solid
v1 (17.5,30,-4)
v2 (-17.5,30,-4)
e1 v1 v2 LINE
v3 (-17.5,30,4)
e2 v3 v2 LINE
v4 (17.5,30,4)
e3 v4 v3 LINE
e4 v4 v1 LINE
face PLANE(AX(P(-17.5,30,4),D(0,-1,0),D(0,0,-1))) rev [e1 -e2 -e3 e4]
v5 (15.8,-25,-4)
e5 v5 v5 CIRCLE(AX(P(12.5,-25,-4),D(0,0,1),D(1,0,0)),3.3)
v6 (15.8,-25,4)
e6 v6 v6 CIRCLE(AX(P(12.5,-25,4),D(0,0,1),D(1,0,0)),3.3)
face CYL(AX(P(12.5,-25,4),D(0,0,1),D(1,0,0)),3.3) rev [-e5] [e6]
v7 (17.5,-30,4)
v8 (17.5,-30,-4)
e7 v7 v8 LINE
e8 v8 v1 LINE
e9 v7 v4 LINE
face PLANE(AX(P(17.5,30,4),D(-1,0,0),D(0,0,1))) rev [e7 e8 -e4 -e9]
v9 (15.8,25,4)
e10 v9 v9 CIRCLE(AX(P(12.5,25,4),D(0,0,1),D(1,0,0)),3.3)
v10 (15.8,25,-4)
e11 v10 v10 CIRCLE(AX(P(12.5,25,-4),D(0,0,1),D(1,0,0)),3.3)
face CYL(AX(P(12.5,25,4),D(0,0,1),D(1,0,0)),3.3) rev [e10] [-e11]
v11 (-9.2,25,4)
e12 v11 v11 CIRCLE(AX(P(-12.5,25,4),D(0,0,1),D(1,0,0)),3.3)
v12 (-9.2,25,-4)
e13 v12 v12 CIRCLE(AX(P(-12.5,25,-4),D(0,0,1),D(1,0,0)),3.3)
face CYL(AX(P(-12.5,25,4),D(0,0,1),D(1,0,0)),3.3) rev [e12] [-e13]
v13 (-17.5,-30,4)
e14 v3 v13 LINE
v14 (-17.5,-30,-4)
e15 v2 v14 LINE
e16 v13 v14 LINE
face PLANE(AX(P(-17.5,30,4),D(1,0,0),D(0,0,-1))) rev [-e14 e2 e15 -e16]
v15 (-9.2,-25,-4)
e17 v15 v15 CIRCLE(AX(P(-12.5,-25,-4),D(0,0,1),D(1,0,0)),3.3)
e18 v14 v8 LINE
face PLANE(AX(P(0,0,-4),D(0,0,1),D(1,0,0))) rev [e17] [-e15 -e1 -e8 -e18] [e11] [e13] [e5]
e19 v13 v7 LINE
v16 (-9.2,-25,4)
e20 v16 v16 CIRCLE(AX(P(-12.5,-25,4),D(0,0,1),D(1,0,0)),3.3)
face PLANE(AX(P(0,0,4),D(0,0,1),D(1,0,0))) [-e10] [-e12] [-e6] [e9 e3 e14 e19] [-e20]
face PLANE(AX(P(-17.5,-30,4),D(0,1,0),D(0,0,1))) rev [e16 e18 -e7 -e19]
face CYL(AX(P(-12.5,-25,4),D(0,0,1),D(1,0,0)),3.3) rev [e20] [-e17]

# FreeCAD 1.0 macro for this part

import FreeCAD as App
import Part
import Sketcher

V = App.Vector
Q = App.Units.Quantity


def add_polygon(sketch, points):
    """Adds a closed chain of lines whose ends are joined by coincident constraints."""
    first, n = sketch.GeometryCount, len(points)
    for a, b in zip(points, points[1:] + points[:1]):
        sketch.addGeometry(Part.LineSegment(App.Vector(*a, 0), App.Vector(*b, 0)), False)
    for i in range(n):
        sketch.addConstraint(Sketcher.Constraint("Coincident", first + i, 2, first + (i + 1) % n, 1))

doc = App.newDocument("Part")
params = doc.addObject("Spreadsheet::Sheet", "Params")
for row, (alias, value) in enumerate([
    ("sketch1_width", "35 mm"),
    ("sketch1_height", "60 mm"),
    ("pad1_length", "8 mm"),
    ("sketch2_height", "8 mm"),
    ("sketch2_width", "3.3 mm"),
    ("groove_angle", "360 deg"),
    ("sketch3_height", "8 mm"),
    ("sketch3_width", "3.3 mm"),
    ("groove2_angle", "360 deg"),
], start=1):
    params.set(f"A{row}", alias)
    params.set(f"B{row}", "=" + value)
    params.setAlias(f"B{row}", alias)

body = doc.addObject("PartDesign::Body", "Body")

# Sketch on XY plane
sketch1 = body.newObject("Sketcher::SketchObject", "Sketch")
sketch1.AttachmentSupport = (doc.getObject("XY_Plane"), [""])
sketch1.MapMode = "FlatFace"
add_polygon(sketch1, [(-18, 30), (-18, -30), (18, -30), (18, 30)])  # lines 0-3
sketch1.addConstraint(Sketcher.Constraint("Vertical", 0))
sketch1.addConstraint(Sketcher.Constraint("Horizontal", 1))
sketch1.addConstraint(Sketcher.Constraint("Vertical", 2))
sketch1.addConstraint(Sketcher.Constraint("Horizontal", 3))
sketch1.addConstraint(Sketcher.Constraint("Symmetric", 0, 2, 2, 2, -1, 1))
sketch1.addConstraint(Sketcher.Constraint("DistanceX", 1, 1, 1, 2, 35.0))
sketch1.addConstraint(Sketcher.Constraint("DistanceY", 0, 2, 0, 1, 60.0))
sketch1.setExpression("Constraints[9]", "Params.sketch1_width")
sketch1.setExpression("Constraints[10]", "Params.sketch1_height")
pad1 = body.newObject("PartDesign::Pad", "Pad")
pad1.Profile = sketch1
pad1.setExpression("Length", "Params.pad1_length")
pad1.Midplane = True

# Sketch on YZ plane
sketch2 = body.newObject("Sketcher::SketchObject", "Sketch001")
sketch2.AttachmentSupport = (doc.getObject("YZ_Plane"), [""])
sketch2.MapMode = "FlatFace"
sketch2.AttachmentOffset = App.Placement(V(0, 0, -12.5), App.Rotation())
add_polygon(sketch2, [(25, -6), (25, 4), (21.7, 4), (21.7, -4)])  # lines 0-3
sketch2.addGeometry(Part.LineSegment(V(25, 4, 0), V(25, -6, 0)), True)  # axis
sketch2.addConstraint(Sketcher.Constraint("Vertical", 0))
sketch2.addConstraint(Sketcher.Constraint("Horizontal", 1))
sketch2.addConstraint(Sketcher.Constraint("Vertical", 2))
sketch2.addConstraint(Sketcher.Constraint("Vertical", 4))
sketch2.addConstraint(Sketcher.Constraint("Coincident", 4, 1, 0, 2))
sketch2.addConstraint(Sketcher.Constraint("Equal", 0, 4))
sketch2.addConstraint(Sketcher.Constraint("DistanceY", 2, 2, 2, 1, 8.0))
sketch2.addConstraint(Sketcher.Constraint("Angle", 3, Q("-31 deg")))
sketch2.addConstraint(Sketcher.Constraint("DistanceX", 1, 2, 1, 1, 3.3))
sketch2.addConstraint(Sketcher.Constraint("DistanceX", -1, 1, 0, 2, 25.0))
sketch2.addConstraint(Sketcher.Constraint("DistanceY", -1, 1, 0, 2, 4.0))
sketch2.setExpression("Constraints[10]", "Params.sketch2_height")
sketch2.setExpression("Constraints[12]", "Params.sketch2_width")
groove = body.newObject("PartDesign::Groove", "Groove")
groove.Profile = sketch2
groove.ReferenceAxis = (sketch2, ["Axis0"])
groove.setExpression("Angle", "Params.groove_angle")
doc.recompute()

mirrored = body.newObject("PartDesign::Mirrored", "Mirrored")
mirrored.Originals = [groove]
mirrored.MirrorPlane = (doc.getObject("YZ_Plane"), [""])
body.Tip = mirrored
doc.recompute()

mirrored2 = body.newObject("PartDesign::Mirrored", "Mirrored001")
mirrored2.Originals = [groove]
mirrored2.MirrorPlane = (doc.getObject("XZ_Plane"), [""])
body.Tip = mirrored2

# Sketch on YZ plane
sketch3 = body.newObject("Sketcher::SketchObject", "Sketch002")
sketch3.AttachmentSupport = (doc.getObject("YZ_Plane"), [""])
sketch3.MapMode = "FlatFace"
sketch3.AttachmentOffset = App.Placement(V(0, 0, 12.5), App.Rotation())
add_polygon(sketch3, [(-25, -6), (-25, 4), (-21.7, 4), (-21.7, -4)])  # lines 0-3
sketch3.addGeometry(Part.LineSegment(V(-25, 4, 0), V(-25, -6, 0)), True)  # axis
sketch3.addConstraint(Sketcher.Constraint("Vertical", 0))
sketch3.addConstraint(Sketcher.Constraint("Horizontal", 1))
sketch3.addConstraint(Sketcher.Constraint("Vertical", 2))
sketch3.addConstraint(Sketcher.Constraint("Vertical", 4))
sketch3.addConstraint(Sketcher.Constraint("Coincident", 4, 1, 0, 2))
sketch3.addConstraint(Sketcher.Constraint("Equal", 0, 4))
sketch3.addConstraint(Sketcher.Constraint("DistanceY", 2, 2, 2, 1, 8.0))
sketch3.addConstraint(Sketcher.Constraint("Angle", 3, Q("-149 deg")))
sketch3.addConstraint(Sketcher.Constraint("DistanceX", 1, 1, 1, 2, 3.3))
sketch3.addConstraint(Sketcher.Constraint("DistanceX", 0, 2, -1, 1, 25.0))
sketch3.addConstraint(Sketcher.Constraint("DistanceY", -1, 1, 0, 2, 4.0))
sketch3.setExpression("Constraints[10]", "Params.sketch3_height")
sketch3.setExpression("Constraints[12]", "Params.sketch3_width")
groove2 = body.newObject("PartDesign::Groove", "Groove001")
groove2.Profile = sketch3
groove2.ReferenceAxis = (sketch3, ["Axis0"])
groove2.setExpression("Angle", "Params.groove2_angle")

doc.recompute()
